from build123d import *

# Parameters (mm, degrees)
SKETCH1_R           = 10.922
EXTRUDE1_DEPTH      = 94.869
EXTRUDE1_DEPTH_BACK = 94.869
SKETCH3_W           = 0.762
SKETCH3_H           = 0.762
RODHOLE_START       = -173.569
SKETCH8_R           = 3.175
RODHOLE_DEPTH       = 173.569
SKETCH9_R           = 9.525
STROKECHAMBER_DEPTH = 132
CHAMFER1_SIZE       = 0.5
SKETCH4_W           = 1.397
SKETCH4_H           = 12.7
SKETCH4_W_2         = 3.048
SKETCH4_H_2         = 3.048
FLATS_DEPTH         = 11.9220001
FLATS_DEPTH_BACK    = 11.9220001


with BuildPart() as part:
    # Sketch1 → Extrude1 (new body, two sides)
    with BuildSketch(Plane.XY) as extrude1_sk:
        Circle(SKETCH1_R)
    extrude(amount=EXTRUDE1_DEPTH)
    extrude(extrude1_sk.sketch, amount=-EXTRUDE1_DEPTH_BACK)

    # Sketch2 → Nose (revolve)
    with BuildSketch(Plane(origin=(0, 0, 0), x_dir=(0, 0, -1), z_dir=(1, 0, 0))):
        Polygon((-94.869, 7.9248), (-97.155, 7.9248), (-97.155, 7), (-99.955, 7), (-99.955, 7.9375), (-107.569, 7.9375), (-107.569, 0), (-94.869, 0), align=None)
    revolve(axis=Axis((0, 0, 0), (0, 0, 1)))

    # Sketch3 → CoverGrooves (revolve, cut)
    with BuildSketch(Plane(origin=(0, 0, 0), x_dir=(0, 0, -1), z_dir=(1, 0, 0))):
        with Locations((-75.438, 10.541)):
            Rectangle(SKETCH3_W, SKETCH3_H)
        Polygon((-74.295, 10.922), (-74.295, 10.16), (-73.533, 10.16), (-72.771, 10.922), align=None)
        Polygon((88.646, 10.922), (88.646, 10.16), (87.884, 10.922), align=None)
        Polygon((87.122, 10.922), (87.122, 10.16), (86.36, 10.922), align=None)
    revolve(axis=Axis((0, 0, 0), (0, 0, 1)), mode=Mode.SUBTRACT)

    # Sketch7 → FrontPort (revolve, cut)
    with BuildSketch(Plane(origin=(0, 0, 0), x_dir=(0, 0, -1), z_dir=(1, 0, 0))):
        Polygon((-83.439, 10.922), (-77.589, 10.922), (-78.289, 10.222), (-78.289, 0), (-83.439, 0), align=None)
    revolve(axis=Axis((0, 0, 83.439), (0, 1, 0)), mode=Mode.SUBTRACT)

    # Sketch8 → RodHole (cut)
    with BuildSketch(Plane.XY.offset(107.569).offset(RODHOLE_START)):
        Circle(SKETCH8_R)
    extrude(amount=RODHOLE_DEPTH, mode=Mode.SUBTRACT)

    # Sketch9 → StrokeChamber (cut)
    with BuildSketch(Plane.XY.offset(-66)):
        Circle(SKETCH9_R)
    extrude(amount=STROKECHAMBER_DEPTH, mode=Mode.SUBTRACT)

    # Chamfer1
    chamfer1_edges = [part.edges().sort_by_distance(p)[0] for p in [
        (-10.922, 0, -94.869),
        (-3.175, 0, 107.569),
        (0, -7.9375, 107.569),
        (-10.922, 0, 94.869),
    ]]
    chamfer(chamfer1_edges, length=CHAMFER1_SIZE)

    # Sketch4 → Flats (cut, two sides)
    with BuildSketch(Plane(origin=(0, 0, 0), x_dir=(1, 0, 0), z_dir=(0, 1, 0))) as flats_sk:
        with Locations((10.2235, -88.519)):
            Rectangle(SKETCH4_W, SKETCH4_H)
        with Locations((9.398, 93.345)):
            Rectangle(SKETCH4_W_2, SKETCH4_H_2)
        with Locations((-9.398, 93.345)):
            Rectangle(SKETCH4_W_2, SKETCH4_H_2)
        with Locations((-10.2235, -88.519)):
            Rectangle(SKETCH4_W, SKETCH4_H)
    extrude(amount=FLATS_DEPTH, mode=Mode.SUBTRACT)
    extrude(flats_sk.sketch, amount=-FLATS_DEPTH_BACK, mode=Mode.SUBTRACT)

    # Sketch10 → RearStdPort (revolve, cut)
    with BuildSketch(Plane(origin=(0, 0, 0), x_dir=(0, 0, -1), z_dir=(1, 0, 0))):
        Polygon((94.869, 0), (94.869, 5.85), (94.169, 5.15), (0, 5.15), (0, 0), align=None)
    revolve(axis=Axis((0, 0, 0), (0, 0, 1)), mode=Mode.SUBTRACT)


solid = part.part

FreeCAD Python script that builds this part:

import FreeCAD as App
import Part
import Sketcher
Q = App.Units.Quantity


def edges_at(feature, points):
    """Names of the edges that pass closest to the given points."""
    edges = feature.Shape.Edges
    near = lambda p: min(range(len(edges)), key=lambda i: edges[i].distToShape(Part.Vertex(*p))[0])
    return sorted({f"Edge{near(p) + 1}" for p in points})


def add_polygon(sketch, points):
    """Adds a closed chain of lines whose ends are joined by coincident constraints."""
    first, n = sketch.GeometryCount, len(points)
    for a, b in zip(points, points[1:] + points[:1]):
        sketch.addGeometry(Part.LineSegment(App.Vector(*a, 0), App.Vector(*b, 0)), False)
    for i in range(n):
        sketch.addConstraint(Sketcher.Constraint("Coincident", first + i, 2, first + (i + 1) % n, 1))

doc = App.newDocument("Part")
body = doc.addObject("PartDesign::Body", "Body")

# Sketch on XY plane
sketch1 = body.newObject("Sketcher::SketchObject", "Sketch")
sketch1.AttachmentSupport = (doc.getObject("XY_Plane"), [""])
sketch1.MapMode = "FlatFace"
sketch1.addGeometry(Part.Circle(App.Vector(0, 0, 0), App.Vector(0, 0, 1), 11), False)
sketch1.addConstraint([
    Sketcher.Constraint("Coincident", 0, 3, -1, 1),
    Sketcher.Constraint("Diameter", 0, Q("0.86 in")),
])
pad1 = body.newObject("PartDesign::Pad", "Pad")
pad1.Profile = sketch1
pad1.Type = "TwoLengths"
pad1.Length = Q("3.735 in")
pad1.Length2 = Q("3.735 in")

# Sketch on YZ plane
sketch2 = body.newObject("Sketcher::SketchObject", "Sketch001")
sketch2.AttachmentSupport = (doc.getObject("YZ_Plane"), [""])
sketch2.MapMode = "FlatFace"
add_polygon(sketch2, [(7.9, 94.9), (7.9, 97.2), (7, 97.2), (7, 100), (7.9, 100), (7.9, 107.6), (0, 107.6), (0, 94.9)])  # lines 0-7
sketch2.addConstraint([
    Sketcher.Constraint("Vertical", 0),
    Sketcher.Constraint("Horizontal", 1),
    Sketcher.Constraint("Vertical", 2),
    Sketcher.Constraint("Horizontal", 3),
    Sketcher.Constraint("Vertical", 4),
    Sketcher.Constraint("Horizontal", 5),
    Sketcher.Constraint("Vertical", 6),
    Sketcher.Constraint("Horizontal", 7),
    Sketcher.Constraint("PointOnObject", 5, 2, -2),
    Sketcher.Constraint("DistanceY", 6, 2, 6, 1, Q("0.5 in")),
    Sketcher.Constraint("DistanceY", 0, 1, 0, 2, Q("0.09 in")),
    Sketcher.Constraint("DistanceX", 5, 2, 5, 1, Q("0.3125 in")),
    Sketcher.Constraint("DistanceX", 7, 1, 7, 2, Q("0.312 in")),
    Sketcher.Constraint("DistanceY", -1, 1, 0, 2, Q("3.825 in")),
    Sketcher.Constraint("DistanceX", 1, 2, 1, 1, Q("0.9248 mm")),
    Sketcher.Constraint("DistanceY", 2, 1, 2, 2, Q("2.8 mm")),
])
revolution = body.newObject("PartDesign::Revolution", "Revolution")
revolution.Profile = sketch2
revolution.ReferenceAxis = (sketch2, ["V_Axis"])
revolution.Angle = 360

# Sketch on YZ plane
sketch3 = body.newObject("Sketcher::SketchObject", "Sketch002")
sketch3.AttachmentSupport = (doc.getObject("YZ_Plane"), [""])
sketch3.MapMode = "FlatFace"
add_polygon(sketch3, [(10.9, 75.8), (10.2, 75.8), (10.2, 75.1), (10.9, 75.1)])  # lines 0-3
add_polygon(sketch3, [(10.9, 74.3), (10.2, 74.3), (10.2, 73.5), (10.9, 72.8)])  # lines 4-7
add_polygon(sketch3, [(10.2, -88.6), (10.9, -88.6), (10.9, -87.9)])  # lines 8-10
add_polygon(sketch3, [(10.2, -87.1), (10.9, -87.1), (10.9, -86.4)])  # lines 11-13
sketch3.addConstraint([
    Sketcher.Constraint("Horizontal", 0),
    Sketcher.Constraint("Vertical", 1),
    Sketcher.Constraint("Horizontal", 2),
    Sketcher.Constraint("Vertical", 3),
    Sketcher.Constraint("Horizontal", 4),
    Sketcher.Constraint("Vertical", 5),
    Sketcher.Constraint("Vertical", 7),
    Sketcher.Constraint("Horizontal", 8),
    Sketcher.Constraint("Vertical", 9),
    Sketcher.Constraint("Horizontal", 11),
    Sketcher.Constraint("Vertical", 12),
    Sketcher.Constraint("Perpendicular", 6, 10),
    Sketcher.Constraint("Parallel", 10, 13),
    Sketcher.Constraint("Vertical", 1, 2, 4, 2),
    Sketcher.Constraint("Vertical", 3, 2, 6, 2),
    Sketcher.Constraint("Vertical", 7, 2, 8, 2),
    Sketcher.Constraint("Vertical", 5, 2, 10, 2),
    Sketcher.Constraint("Vertical", 9, 2, 11, 2),
    Sketcher.Constraint("Vertical", 10, 2, 13, 2),
    Sketcher.Constraint("Equal", 11, 1),
    Sketcher.Constraint("Equal", 3, 5),
    Sketcher.Constraint("Equal", 5, 9),
    Sketcher.Constraint("DistanceX", 0, 2, 0, 1, Q("0.03 in")),
    Sketcher.Constraint("DistanceX", -1, 1, 0, 2, Q("0.4 in")),
    Sketcher.Constraint("DistanceY", 12, 2, -1, 1, Q("3.4 in")),
    Sketcher.Constraint("DistanceY", 8, 2, -1, 1, Q("3.49 in")),
    Sketcher.Constraint("DistanceY", 4, 2, 1, 2, Q("0.03 in")),
    Sketcher.Constraint("DistanceY", -1, 1, 0, 2, Q("2.985 in")),
])
groove = body.newObject("PartDesign::Groove", "Groove")
groove.Profile = sketch3
groove.ReferenceAxis = (sketch3, ["V_Axis"])
groove.Angle = 360

# Sketch on YZ plane
sketch4 = body.newObject("Sketcher::SketchObject", "Sketch003")
sketch4.AttachmentSupport = (doc.getObject("YZ_Plane"), [""])
sketch4.MapMode = "FlatFace"
add_polygon(sketch4, [(10.9, 77.6), (10.9, 83.4), (0, 83.4), (0, 78.3), (10.2, 78.3)])  # lines 0-4
sketch4.addGeometry(Part.LineSegment(App.Vector(0, 83.4, 0), App.Vector(10.9, 83.4, 0)), True)  # axis
sketch4.addConstraint([
    Sketcher.Constraint("Vertical", 0),
    Sketcher.Constraint("Horizontal", 1),
    Sketcher.Constraint("Vertical", 2),
    Sketcher.Constraint("Horizontal", 3),
    Sketcher.Constraint("Horizontal", 5),
    Sketcher.Constraint("Coincident", 5, 1, 1, 2),
    Sketcher.Constraint("PointOnObject", 1, 2, -2),
    Sketcher.Constraint("Vertical", 4, 2, 5, 2),
    Sketcher.Constraint("Angle", 4, Q("-45 deg")),
    Sketcher.Constraint("DistanceX", 1, 2, 1, 1, Q("0.43 in")),
    Sketcher.Constraint("DistanceY", -1, 1, 0, 2, Q("3.285 in")),
    Sketcher.Constraint("DistanceX", 3, 1, 3, 2, Q("10.222 mm")),
    Sketcher.Constraint("DistanceY", 0, 1, 0, 2, Q("5.85 mm")),
])
groove2 = body.newObject("PartDesign::Groove", "Groove001")
groove2.Profile = sketch4
groove2.ReferenceAxis = (sketch4, ["Axis0"])
groove2.Angle = 360

# Sketch on XY plane
sketch5 = body.newObject("Sketcher::SketchObject", "Sketch004")
sketch5.AttachmentSupport = (doc.getObject("XY_Plane"), [""])
sketch5.MapMode = "FlatFace"
sketch5.AttachmentOffset = App.Placement(App.Vector(0, 0, -66), App.Rotation())
sketch5.addGeometry(Part.Circle(App.Vector(0, 0, 0), App.Vector(0, 0, 1), 3.2), False)
sketch5.addConstraint([
    Sketcher.Constraint("Coincident", 0, 3, -1, 1),
    Sketcher.Constraint("Diameter", 0, Q("0.25 in")),
])
pocket1 = body.newObject("PartDesign::Pocket", "Pocket")
pocket1.Profile = sketch5
pocket1.Length = 173.569
pocket1.Reversed = True

# Sketch on XY plane
sketch6 = body.newObject("Sketcher::SketchObject", "Sketch005")
sketch6.AttachmentSupport = (doc.getObject("XY_Plane"), [""])
sketch6.MapMode = "FlatFace"
sketch6.AttachmentOffset = App.Placement(App.Vector(0, 0, -66), App.Rotation())
sketch6.addGeometry(Part.Circle(App.Vector(0, 0, 0), App.Vector(0, 0, 1), 10), False)
sketch6.addConstraint([
    Sketcher.Constraint("Coincident", 0, 3, -1, 1),
    Sketcher.Constraint("Diameter", 0, Q("0.75 in")),
])
pocket2 = body.newObject("PartDesign::Pocket", "Pocket001")
pocket2.Profile = sketch6
pocket2.Length = 132
pocket2.Reversed = True
doc.recompute()

chamfer = body.newObject("PartDesign::Chamfer", "Chamfer")
chamfer.Base = (pocket2, edges_at(pocket2, [
    (-10.922, 0, -94.869),
    (-3.175, 0, 107.569),
    (0, -7.938, 107.569),
    (-10.922, 0, 94.869),
]))
chamfer.Size = 0.5

# Sketch on XZ plane
sketch7 = body.newObject("Sketcher::SketchObject", "Sketch006")
sketch7.AttachmentSupport = (doc.getObject("XZ_Plane"), [""])
sketch7.MapMode = "FlatFace"
add_polygon(sketch7, [(9.5, 82.2), (9.5, 94.9), (10.9, 94.9), (10.9, 82.2)])  # lines 0-3
add_polygon(sketch7, [(7.9, -94.9), (7.9, -91.8), (10.9, -91.8), (10.9, -94.9)])  # lines 4-7
add_polygon(sketch7, [(-10.9, -94.9), (-10.9, -91.8), (-7.9, -91.8), (-7.9, -94.9)])  # lines 8-11
add_polygon(sketch7, [(-10.9, 82.2), (-10.9, 94.9), (-9.5, 94.9), (-9.5, 82.2)])  # lines 12-15
sketch7.addConstraint([
    Sketcher.Constraint("Vertical", 0),
    Sketcher.Constraint("Horizontal", 1),
    Sketcher.Constraint("Vertical", 2),
    Sketcher.Constraint("Horizontal", 3),
    Sketcher.Constraint("Vertical", 4),
    Sketcher.Constraint("Horizontal", 5),
    Sketcher.Constraint("Vertical", 6),
    Sketcher.Constraint("Horizontal", 7),
    Sketcher.Constraint("Vertical", 8),
    Sketcher.Constraint("Horizontal", 9),
    Sketcher.Constraint("Vertical", 10),
    Sketcher.Constraint("Horizontal", 11),
    Sketcher.Constraint("Vertical", 12),
    Sketcher.Constraint("Horizontal", 13),
    Sketcher.Constraint("Vertical", 14),
    Sketcher.Constraint("Horizontal", 15),
    Sketcher.Constraint("Symmetric", 1, 2, 11, 2, -1, 1),
    Sketcher.Constraint("Symmetric", 6, 2, 12, 2, -1, 1),
    Sketcher.Constraint("Symmetric", 5, 2, 8, 2, -2),
    Sketcher.Constraint("Symmetric", 7, 2, 10, 2, -2),
    Sketcher.Constraint("Symmetric", 3, 2, 14, 2, -2),
    Sketcher.Constraint("Equal", 11, 4),
    Sketcher.Constraint("DistanceY", 0, 1, 0, 2, Q("0.5 in")),
    Sketcher.Constraint("DistanceX", 5, 1, 5, 2, Q("0.12 in")),
    Sketcher.Constraint("DistanceX", 1, 1, 1, 2, Q("0.055 in")),
    Sketcher.Constraint("DistanceX", -1, 1, 1, 2, Q("0.43 in")),
    Sketcher.Constraint("DistanceY", 4, 2, 3, 2, Q("6.85 in")),
])
pocket3 = body.newObject("PartDesign::Pocket", "Pocket002")
pocket3.Profile = sketch7
pocket3.Type = "ThroughAll"
pocket3.Midplane = True

# Sketch on YZ plane
sketch8 = body.newObject("Sketcher::SketchObject", "Sketch007")
sketch8.AttachmentSupport = (doc.getObject("YZ_Plane"), [""])
sketch8.MapMode = "FlatFace"
add_polygon(sketch8, [(0, -94.9), (5.8, -94.9), (5.2, -94.2), (5.2, 0), (0, 0)])  # lines 0-4
sketch8.addConstraint([
    Sketcher.Constraint("Horizontal", 0),
    Sketcher.Constraint("Vertical", 2),
    Sketcher.Constraint("Horizontal", 3),
    Sketcher.Constraint("Vertical", 4),
    Sketcher.Constraint("Coincident", 3, 2, -1, 1),
    Sketcher.Constraint("Angle", 1, Q("135 deg")),
    Sketcher.Constraint("DistanceY", 4, 2, 4, 1, Q("3.735 in")),
    Sketcher.Constraint("DistanceX", 0, 1, 0, 2, Q("5.85 mm")),
    Sketcher.Constraint("DistanceX", 3, 2, 3, 1, Q("5.15 mm")),
])
groove3 = body.newObject("PartDesign::Groove", "Groove002")
groove3.Profile = sketch8
groove3.ReferenceAxis = (sketch8, ["V_Axis"])
groove3.Angle = 360

doc.recompute()
